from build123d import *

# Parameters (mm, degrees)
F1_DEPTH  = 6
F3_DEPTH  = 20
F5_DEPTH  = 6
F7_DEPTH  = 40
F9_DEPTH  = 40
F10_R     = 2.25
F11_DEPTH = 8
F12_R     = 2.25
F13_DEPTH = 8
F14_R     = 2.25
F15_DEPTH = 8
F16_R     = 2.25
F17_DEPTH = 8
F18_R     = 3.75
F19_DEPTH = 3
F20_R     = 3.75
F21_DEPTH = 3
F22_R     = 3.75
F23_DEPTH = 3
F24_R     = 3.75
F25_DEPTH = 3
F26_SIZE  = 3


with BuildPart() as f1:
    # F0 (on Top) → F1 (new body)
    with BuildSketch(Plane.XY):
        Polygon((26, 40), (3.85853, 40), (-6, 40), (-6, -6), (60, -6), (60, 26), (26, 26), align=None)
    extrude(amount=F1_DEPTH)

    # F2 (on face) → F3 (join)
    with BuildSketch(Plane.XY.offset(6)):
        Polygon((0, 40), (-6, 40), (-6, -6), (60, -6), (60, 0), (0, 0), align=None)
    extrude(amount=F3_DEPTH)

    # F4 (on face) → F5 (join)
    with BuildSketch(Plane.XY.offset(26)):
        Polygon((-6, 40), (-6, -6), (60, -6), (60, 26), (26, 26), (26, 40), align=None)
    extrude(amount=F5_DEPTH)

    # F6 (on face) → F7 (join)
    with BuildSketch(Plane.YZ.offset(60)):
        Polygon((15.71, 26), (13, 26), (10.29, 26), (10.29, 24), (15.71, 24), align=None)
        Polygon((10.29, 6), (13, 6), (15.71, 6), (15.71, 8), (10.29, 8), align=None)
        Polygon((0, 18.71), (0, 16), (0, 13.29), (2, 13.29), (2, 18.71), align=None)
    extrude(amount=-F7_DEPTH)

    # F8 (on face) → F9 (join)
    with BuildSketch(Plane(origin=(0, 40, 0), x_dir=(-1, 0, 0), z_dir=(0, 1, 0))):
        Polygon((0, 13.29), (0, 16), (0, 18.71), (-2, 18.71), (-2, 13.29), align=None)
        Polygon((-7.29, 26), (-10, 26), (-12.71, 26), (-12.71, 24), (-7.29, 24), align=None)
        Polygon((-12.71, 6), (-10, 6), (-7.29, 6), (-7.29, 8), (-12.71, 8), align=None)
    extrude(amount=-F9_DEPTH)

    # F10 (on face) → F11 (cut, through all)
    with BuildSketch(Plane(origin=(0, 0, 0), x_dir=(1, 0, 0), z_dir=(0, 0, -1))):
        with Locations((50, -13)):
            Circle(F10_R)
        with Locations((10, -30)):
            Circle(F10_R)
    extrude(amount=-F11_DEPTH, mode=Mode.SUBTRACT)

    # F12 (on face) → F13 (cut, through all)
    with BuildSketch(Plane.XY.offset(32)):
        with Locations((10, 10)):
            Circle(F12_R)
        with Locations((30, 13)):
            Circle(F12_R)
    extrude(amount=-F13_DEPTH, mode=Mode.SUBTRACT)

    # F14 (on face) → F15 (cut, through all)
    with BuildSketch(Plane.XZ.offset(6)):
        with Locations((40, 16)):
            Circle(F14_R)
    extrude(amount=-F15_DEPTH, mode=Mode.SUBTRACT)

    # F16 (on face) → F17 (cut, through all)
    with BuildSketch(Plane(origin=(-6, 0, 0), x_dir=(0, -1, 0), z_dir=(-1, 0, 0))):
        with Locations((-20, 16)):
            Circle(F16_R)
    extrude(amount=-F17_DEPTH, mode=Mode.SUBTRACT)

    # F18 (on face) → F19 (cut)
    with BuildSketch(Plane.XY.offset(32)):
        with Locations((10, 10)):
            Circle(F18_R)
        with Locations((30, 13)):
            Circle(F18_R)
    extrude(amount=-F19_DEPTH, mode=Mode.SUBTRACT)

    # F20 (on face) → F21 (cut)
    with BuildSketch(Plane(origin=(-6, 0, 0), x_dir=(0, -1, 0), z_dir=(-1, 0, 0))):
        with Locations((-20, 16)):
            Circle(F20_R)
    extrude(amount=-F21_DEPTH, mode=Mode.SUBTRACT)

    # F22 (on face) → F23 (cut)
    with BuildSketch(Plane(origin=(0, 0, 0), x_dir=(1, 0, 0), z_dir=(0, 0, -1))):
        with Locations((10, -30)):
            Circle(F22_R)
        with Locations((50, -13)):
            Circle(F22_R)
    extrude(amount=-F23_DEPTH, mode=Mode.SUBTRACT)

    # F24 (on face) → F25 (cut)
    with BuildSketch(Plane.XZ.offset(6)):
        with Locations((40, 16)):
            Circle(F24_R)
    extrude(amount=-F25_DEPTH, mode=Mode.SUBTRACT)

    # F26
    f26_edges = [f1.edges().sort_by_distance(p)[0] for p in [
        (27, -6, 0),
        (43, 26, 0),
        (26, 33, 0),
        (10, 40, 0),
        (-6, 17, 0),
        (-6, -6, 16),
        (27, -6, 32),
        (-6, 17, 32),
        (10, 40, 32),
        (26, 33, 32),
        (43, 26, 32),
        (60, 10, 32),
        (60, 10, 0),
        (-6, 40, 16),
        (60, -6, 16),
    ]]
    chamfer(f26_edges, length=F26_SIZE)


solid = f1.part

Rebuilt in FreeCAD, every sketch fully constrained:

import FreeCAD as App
import Part
import Sketcher


def edges_at(feature, points):
    """Names of the edges that pass closest to the given points."""
    edges = feature.Shape.Edges
    near = lambda p: min(range(len(edges)), key=lambda i: edges[i].distToShape(Part.Vertex(*p))[0])
    return sorted({f"Edge{near(p) + 1}" for p in points})

doc = App.newDocument("Part")
body = doc.addObject("PartDesign::Body", "Body")

sketch1 = doc.addObject("Sketcher::SketchObject", "Sketch")
body.addObject(sketch1)
sketch1.AttachmentSupport = (doc.XY_Plane, [""])
sketch1.MapMode = "FlatFace"
sketch1.addGeometry(Part.LineSegment(App.Vector(26, 40, 0), App.Vector(-6, 40, 0)), False)
sketch1.addGeometry(Part.LineSegment(App.Vector(-6, 40, 0), App.Vector(-6, -6, 0)), False)
sketch1.addGeometry(Part.LineSegment(App.Vector(-6, -6, 0), App.Vector(60, -6, 0)), False)
sketch1.addGeometry(Part.LineSegment(App.Vector(60, -6, 0), App.Vector(60, 26, 0)), False)
sketch1.addGeometry(Part.LineSegment(App.Vector(60, 26, 0), App.Vector(26, 26, 0)), False)
sketch1.addGeometry(Part.LineSegment(App.Vector(26, 26, 0), App.Vector(26, 40, 0)), False)
sketch1.addConstraint(Sketcher.Constraint("Coincident", 0, 2, 1, 1))
sketch1.addConstraint(Sketcher.Constraint("Coincident", 1, 2, 2, 1))
sketch1.addConstraint(Sketcher.Constraint("Coincident", 2, 2, 3, 1))
sketch1.addConstraint(Sketcher.Constraint("Coincident", 3, 2, 4, 1))
sketch1.addConstraint(Sketcher.Constraint("Coincident", 4, 2, 5, 1))
sketch1.addConstraint(Sketcher.Constraint("Coincident", 5, 2, 0, 1))
sketch1.addConstraint(Sketcher.Constraint("Horizontal", 0))
sketch1.addConstraint(Sketcher.Constraint("Vertical", 1))
sketch1.addConstraint(Sketcher.Constraint("Horizontal", 2))
sketch1.addConstraint(Sketcher.Constraint("Vertical", 3))
sketch1.addConstraint(Sketcher.Constraint("Horizontal", 4))
sketch1.addConstraint(Sketcher.Constraint("Vertical", 5))
sketch1.addConstraint(Sketcher.Constraint("Equal", 0, 3))
sketch1.addConstraint(Sketcher.Constraint("DistanceX", 0, 2, 0, 1, 32.0))
sketch1.addConstraint(Sketcher.Constraint("DistanceX", 2, 1, 2, 2, 66.0))
sketch1.addConstraint(Sketcher.Constraint("DistanceY", 1, 2, 1, 1, 46.0))
sketch1.addConstraint(Sketcher.Constraint("DistanceX", 0, 2, -1, 1, 6.0))
sketch1.addConstraint(Sketcher.Constraint("DistanceY", -1, 1, 0, 2, 40.0))
pad1 = doc.addObject("PartDesign::Pad", "Pad")
body.addObject(pad1)
pad1.Profile = sketch1
pad1.Length = 6

sketch2 = doc.addObject("Sketcher::SketchObject", "Sketch001")
body.addObject(sketch2)
sketch2.AttachmentSupport = (doc.XY_Plane, [""])
sketch2.MapMode = "FlatFace"
sketch2.AttachmentOffset = App.Placement(App.Vector(0, 0, 6), App.Rotation())
sketch2.addGeometry(Part.LineSegment(App.Vector(0, 40, 0), App.Vector(-6, 40, 0)), False)
sketch2.addGeometry(Part.LineSegment(App.Vector(-6, 40, 0), App.Vector(-6, -6, 0)), False)
sketch2.addGeometry(Part.LineSegment(App.Vector(-6, -6, 0), App.Vector(60, -6, 0)), False)
sketch2.addGeometry(Part.LineSegment(App.Vector(60, -6, 0), App.Vector(60, 0, 0)), False)
sketch2.addGeometry(Part.LineSegment(App.Vector(60, 0, 0), App.Vector(0, 0, 0)), False)
sketch2.addGeometry(Part.LineSegment(App.Vector(0, 0, 0), App.Vector(0, 40, 0)), False)
sketch2.addConstraint(Sketcher.Constraint("Coincident", 0, 2, 1, 1))
sketch2.addConstraint(Sketcher.Constraint("Coincident", 1, 2, 2, 1))
sketch2.addConstraint(Sketcher.Constraint("Coincident", 2, 2, 3, 1))
sketch2.addConstraint(Sketcher.Constraint("Coincident", 3, 2, 4, 1))
sketch2.addConstraint(Sketcher.Constraint("Coincident", 4, 2, 5, 1))
sketch2.addConstraint(Sketcher.Constraint("Coincident", 5, 2, 0, 1))
sketch2.addConstraint(Sketcher.Constraint("Horizontal", 0))
sketch2.addConstraint(Sketcher.Constraint("Vertical", 1))
sketch2.addConstraint(Sketcher.Constraint("Horizontal", 2))
sketch2.addConstraint(Sketcher.Constraint("Vertical", 3))
sketch2.addConstraint(Sketcher.Constraint("Horizontal", 4))
sketch2.addConstraint(Sketcher.Constraint("Vertical", 5))
sketch2.addConstraint(Sketcher.Constraint("Coincident", 4, 2, -1, 1))
sketch2.addConstraint(Sketcher.Constraint("Equal", 0, 3))
sketch2.addConstraint(Sketcher.Constraint("DistanceX", 0, 2, 0, 1, 6.0))
sketch2.addConstraint(Sketcher.Constraint("DistanceX", 2, 1, 2, 2, 66.0))
sketch2.addConstraint(Sketcher.Constraint("DistanceY", 1, 2, 1, 1, 46.0))
pad2 = doc.addObject("PartDesign::Pad", "Pad001")
body.addObject(pad2)
pad2.Profile = sketch2
pad2.Length = 20

sketch3 = doc.addObject("Sketcher::SketchObject", "Sketch002")
body.addObject(sketch3)
sketch3.AttachmentSupport = (doc.XY_Plane, [""])
sketch3.MapMode = "FlatFace"
sketch3.AttachmentOffset = App.Placement(App.Vector(0, 0, 26), App.Rotation())
sketch3.addGeometry(Part.LineSegment(App.Vector(-6, 40, 0), App.Vector(-6, -6, 0)), False)
sketch3.addGeometry(Part.LineSegment(App.Vector(-6, -6, 0), App.Vector(60, -6, 0)), False)
sketch3.addGeometry(Part.LineSegment(App.Vector(60, -6, 0), App.Vector(60, 26, 0)), False)
sketch3.addGeometry(Part.LineSegment(App.Vector(60, 26, 0), App.Vector(26, 26, 0)), False)
sketch3.addGeometry(Part.LineSegment(App.Vector(26, 26, 0), App.Vector(26, 40, 0)), False)
sketch3.addGeometry(Part.LineSegment(App.Vector(26, 40, 0), App.Vector(-6, 40, 0)), False)
sketch3.addConstraint(Sketcher.Constraint("Coincident", 0, 2, 1, 1))
sketch3.addConstraint(Sketcher.Constraint("Coincident", 1, 2, 2, 1))
sketch3.addConstraint(Sketcher.Constraint("Coincident", 2, 2, 3, 1))
sketch3.addConstraint(Sketcher.Constraint("Coincident", 3, 2, 4, 1))
sketch3.addConstraint(Sketcher.Constraint("Coincident", 4, 2, 5, 1))
sketch3.addConstraint(Sketcher.Constraint("Coincident", 5, 2, 0, 1))
sketch3.addConstraint(Sketcher.Constraint("Vertical", 0))
sketch3.addConstraint(Sketcher.Constraint("Horizontal", 1))
sketch3.addConstraint(Sketcher.Constraint("Vertical", 2))
sketch3.addConstraint(Sketcher.Constraint("Horizontal", 3))
sketch3.addConstraint(Sketcher.Constraint("Vertical", 4))
sketch3.addConstraint(Sketcher.Constraint("Horizontal", 5))
sketch3.addConstraint(Sketcher.Constraint("Equal", 5, 2))
sketch3.addConstraint(Sketcher.Constraint("DistanceX", 1, 1, 1, 2, 66.0))
sketch3.addConstraint(Sketcher.Constraint("DistanceX", 3, 2, 3, 1, 34.0))
sketch3.addConstraint(Sketcher.Constraint("DistanceY", 0, 2, 0, 1, 46.0))
sketch3.addConstraint(Sketcher.Constraint("DistanceX", 0, 2, -1, 1, 6.0))
sketch3.addConstraint(Sketcher.Constraint("DistanceY", 0, 2, -1, 1, 6.0))
pad3 = doc.addObject("PartDesign::Pad", "Pad002")
body.addObject(pad3)
pad3.Profile = sketch3
pad3.Length = 6

sketch4 = doc.addObject("Sketcher::SketchObject", "Sketch003")
body.addObject(sketch4)
sketch4.AttachmentSupport = (doc.YZ_Plane, [""])
sketch4.MapMode = "FlatFace"
sketch4.AttachmentOffset = App.Placement(App.Vector(0, 0, 60), App.Rotation())
sketch4.addGeometry(Part.LineSegment(App.Vector(15.7, 26, 0), App.Vector(10.3, 26, 0)), False)
sketch4.addGeometry(Part.LineSegment(App.Vector(10.3, 26, 0), App.Vector(10.3, 24, 0)), False)
sketch4.addGeometry(Part.LineSegment(App.Vector(10.3, 24, 0), App.Vector(15.7, 24, 0)), False)
sketch4.addGeometry(Part.LineSegment(App.Vector(15.7, 24, 0), App.Vector(15.7, 26, 0)), False)
sketch4.addGeometry(Part.LineSegment(App.Vector(10.3, 6, 0), App.Vector(15.7, 6, 0)), False)
sketch4.addGeometry(Part.LineSegment(App.Vector(15.7, 6, 0), App.Vector(15.7, 8, 0)), False)
sketch4.addGeometry(Part.LineSegment(App.Vector(15.7, 8, 0), App.Vector(10.3, 8, 0)), False)
sketch4.addGeometry(Part.LineSegment(App.Vector(10.3, 8, 0), App.Vector(10.3, 6, 0)), False)
sketch4.addGeometry(Part.LineSegment(App.Vector(0, 18.7, 0), App.Vector(0, 13.3, 0)), False)
sketch4.addGeometry(Part.LineSegment(App.Vector(0, 13.3, 0), App.Vector(2, 13.3, 0)), False)
sketch4.addGeometry(Part.LineSegment(App.Vector(2, 13.3, 0), App.Vector(2, 18.7, 0)), False)
sketch4.addGeometry(Part.LineSegment(App.Vector(2, 18.7, 0), App.Vector(0, 18.7, 0)), False)
sketch4.addConstraint(Sketcher.Constraint("Coincident", 0, 2, 1, 1))
sketch4.addConstraint(Sketcher.Constraint("Coincident", 1, 2, 2, 1))
sketch4.addConstraint(Sketcher.Constraint("Coincident", 2, 2, 3, 1))
sketch4.addConstraint(Sketcher.Constraint("Coincident", 3, 2, 0, 1))
sketch4.addConstraint(Sketcher.Constraint("Coincident", 4, 2, 5, 1))
sketch4.addConstraint(Sketcher.Constraint("Coincident", 5, 2, 6, 1))
sketch4.addConstraint(Sketcher.Constraint("Coincident", 6, 2, 7, 1))
sketch4.addConstraint(Sketcher.Constraint("Coincident", 7, 2, 4, 1))
sketch4.addConstraint(Sketcher.Constraint("Coincident", 8, 2, 9, 1))
sketch4.addConstraint(Sketcher.Constraint("Coincident", 9, 2, 10, 1))
sketch4.addConstraint(Sketcher.Constraint("Coincident", 10, 2, 11, 1))
sketch4.addConstraint(Sketcher.Constraint("Coincident", 11, 2, 8, 1))
sketch4.addConstraint(Sketcher.Constraint("Horizontal", 0))
sketch4.addConstraint(Sketcher.Constraint("Vertical", 1))
sketch4.addConstraint(Sketcher.Constraint("Horizontal", 2))
sketch4.addConstraint(Sketcher.Constraint("Vertical", 3))
sketch4.addConstraint(Sketcher.Constraint("Horizontal", 4))
sketch4.addConstraint(Sketcher.Constraint("Vertical", 5))
sketch4.addConstraint(Sketcher.Constraint("Horizontal", 6))
sketch4.addConstraint(Sketcher.Constraint("Vertical", 7))
sketch4.addConstraint(Sketcher.Constraint("Vertical", 8))
sketch4.addConstraint(Sketcher.Constraint("Horizontal", 9))
sketch4.addConstraint(Sketcher.Constraint("Vertical", 10))
sketch4.addConstraint(Sketcher.Constraint("Horizontal", 11))
sketch4.addConstraint(Sketcher.Constraint("PointOnObject", 8, 2, -2))
sketch4.addConstraint(Sketcher.Constraint("Vertical", 3, 2, 4, 2))
sketch4.addConstraint(Sketcher.Constraint("Vertical", 1, 2, 6, 2))
sketch4.addConstraint(Sketcher.Constraint("Equal", 11, 1))
sketch4.addConstraint(Sketcher.Constraint("Equal", 3, 5))
sketch4.addConstraint(Sketcher.Constraint("Equal", 6, 8))
sketch4.addConstraint(Sketcher.Constraint("DistanceX", 9, 1, 9, 2, 2.0))
sketch4.addConstraint(Sketcher.Constraint("DistanceY", -1, 1, 0, 2, 26.0))
sketch4.addConstraint(Sketcher.Constraint("DistanceY", -1, 1, 4, 2, 6.0))
sketch4.addConstraint(Sketcher.Constraint("DistanceX", 0, 2, 0, 1, 5.42))
sketch4.addConstraint(Sketcher.Constraint("DistanceX", -1, 1, 0, 2, 10.29))
sketch4.addConstraint(Sketcher.Constraint("DistanceY", -1, 1, 8, 2, 13.29))
pad4 = doc.addObject("PartDesign::Pad", "Pad003")
body.addObject(pad4)
pad4.Profile = sketch4
pad4.Length = 40
pad4.Reversed = True

sketch5 = doc.addObject("Sketcher::SketchObject", "Sketch004")
body.addObject(sketch5)
sketch5.AttachmentSupport = (doc.XZ_Plane, [""])
sketch5.MapMode = "FlatFace"
sketch5.AttachmentOffset = App.Placement(App.Vector(0, 0, -40), App.Rotation())
sketch5.addGeometry(Part.LineSegment(App.Vector(0, 13.3, 0), App.Vector(0, 18.7, 0)), False)
sketch5.addGeometry(Part.LineSegment(App.Vector(0, 18.7, 0), App.Vector(2, 18.7, 0)), False)
sketch5.addGeometry(Part.LineSegment(App.Vector(2, 18.7, 0), App.Vector(2, 13.3, 0)), False)
sketch5.addGeometry(Part.LineSegment(App.Vector(2, 13.3, 0), App.Vector(0, 13.3, 0)), False)
sketch5.addGeometry(Part.LineSegment(App.Vector(7.3, 26, 0), App.Vector(12.7, 26, 0)), False)
sketch5.addGeometry(Part.LineSegment(App.Vector(12.7, 26, 0), App.Vector(12.7, 24, 0)), False)
sketch5.addGeometry(Part.LineSegment(App.Vector(12.7, 24, 0), App.Vector(7.3, 24, 0)), False)
sketch5.addGeometry(Part.LineSegment(App.Vector(7.3, 24, 0), App.Vector(7.3, 26, 0)), False)
sketch5.addGeometry(Part.LineSegment(App.Vector(12.7, 6, 0), App.Vector(7.3, 6, 0)), False)
sketch5.addGeometry(Part.LineSegment(App.Vector(7.3, 6, 0), App.Vector(7.3, 8, 0)), False)
sketch5.addGeometry(Part.LineSegment(App.Vector(7.3, 8, 0), App.Vector(12.7, 8, 0)), False)
sketch5.addGeometry(Part.LineSegment(App.Vector(12.7, 8, 0), App.Vector(12.7, 6, 0)), False)
sketch5.addConstraint(Sketcher.Constraint("Coincident", 0, 2, 1, 1))
sketch5.addConstraint(Sketcher.Constraint("Coincident", 1, 2, 2, 1))
sketch5.addConstraint(Sketcher.Constraint("Coincident", 2, 2, 3, 1))
sketch5.addConstraint(Sketcher.Constraint("Coincident", 3, 2, 0, 1))
sketch5.addConstraint(Sketcher.Constraint("Coincident", 4, 2, 5, 1))
sketch5.addConstraint(Sketcher.Constraint("Coincident", 5, 2, 6, 1))
sketch5.addConstraint(Sketcher.Constraint("Coincident", 6, 2, 7, 1))
sketch5.addConstraint(Sketcher.Constraint("Coincident", 7, 2, 4, 1))
sketch5.addConstraint(Sketcher.Constraint("Coincident", 8, 2, 9, 1))
sketch5.addConstraint(Sketcher.Constraint("Coincident", 9, 2, 10, 1))
sketch5.addConstraint(Sketcher.Constraint("Coincident", 10, 2, 11, 1))
sketch5.addConstraint(Sketcher.Constraint("Coincident", 11, 2, 8, 1))
sketch5.addConstraint(Sketcher.Constraint("Vertical", 0))
sketch5.addConstraint(Sketcher.Constraint("Horizontal", 1))
sketch5.addConstraint(Sketcher.Constraint("Vertical", 2))
sketch5.addConstraint(Sketcher.Constraint("Horizontal", 3))
sketch5.addConstraint(Sketcher.Constraint("Horizontal", 4))
sketch5.addConstraint(Sketcher.Constraint("Vertical", 5))
sketch5.addConstraint(Sketcher.Constraint("Horizontal", 6))
sketch5.addConstraint(Sketcher.Constraint("Vertical", 7))
sketch5.addConstraint(Sketcher.Constraint("Horizontal", 8))
sketch5.addConstraint(Sketcher.Constraint("Vertical", 9))
sketch5.addConstraint(Sketcher.Constraint("Horizontal", 10))
sketch5.addConstraint(Sketcher.Constraint("Vertical", 11))
sketch5.addConstraint(Sketcher.Constraint("PointOnObject", 0, 2, -2))
sketch5.addConstraint(Sketcher.Constraint("Vertical", 7, 2, 8, 2))
sketch5.addConstraint(Sketcher.Constraint("Vertical", 5, 2, 10, 2))
sketch5.addConstraint(Sketcher.Constraint("Equal", 10, 0))
sketch5.addConstraint(Sketcher.Constraint("Equal", 3, 5))
sketch5.addConstraint(Sketcher.Constraint("Equal", 7, 9))
sketch5.addConstraint(Sketcher.Constraint("DistanceX", 1, 1, 1, 2, 2.0))
sketch5.addConstraint(Sketcher.Constraint("DistanceY", -1, 1, 4, 2, 26.0))
sketch5.addConstraint(Sketcher.Constraint("DistanceY", -1, 1, 8, 2, 6.0))
sketch5.addConstraint(Sketcher.Constraint("DistanceX", 4, 1, 4, 2, 5.42))
sketch5.addConstraint(Sketcher.Constraint("DistanceY", -1, 1, 0, 2, 18.71))
sketch5.addConstraint(Sketcher.Constraint("DistanceX", -1, 1, 4, 2, 12.71))
pad5 = doc.addObject("PartDesign::Pad", "Pad004")
body.addObject(pad5)
pad5.Profile = sketch5
pad5.Length = 40

sketch6 = doc.addObject("Sketcher::SketchObject", "Sketch005")
body.addObject(sketch6)
sketch6.AttachmentSupport = (doc.XY_Plane, [""])
sketch6.MapMode = "FlatFace"
sketch6.addGeometry(Part.Circle(App.Vector(50, 13, 0), App.Vector(0, 0, 1), 2.2), False)
sketch6.addGeometry(Part.Circle(App.Vector(10, 30, 0), App.Vector(0, 0, 1), 2.2), False)
sketch6.addConstraint(Sketcher.Constraint("Equal", 0, 1))
sketch6.addConstraint(Sketcher.Constraint("Diameter", 0, 4.5))
sketch6.addConstraint(Sketcher.Constraint("DistanceX", -1, 1, 0, 3, 50.0))
sketch6.addConstraint(Sketcher.Constraint("DistanceY", -1, 1, 0, 3, 13.0))
sketch6.addConstraint(Sketcher.Constraint("DistanceX", -1, 1, 1, 3, 10.0))
sketch6.addConstraint(Sketcher.Constraint("DistanceY", -1, 1, 1, 3, 30.0))
pocket1 = doc.addObject("PartDesign::Pocket", "Pocket")
body.addObject(pocket1)
pocket1.Profile = sketch6
pocket1.Length = 8
pocket1.Reversed = True

sketch7 = doc.addObject("Sketcher::SketchObject", "Sketch006")
body.addObject(sketch7)
sketch7.AttachmentSupport = (doc.XY_Plane, [""])
sketch7.MapMode = "FlatFace"
sketch7.AttachmentOffset = App.Placement(App.Vector(0, 0, 32), App.Rotation())
sketch7.addGeometry(Part.Circle(App.Vector(10, 10, 0), App.Vector(0, 0, 1), 2.2), False)
sketch7.addGeometry(Part.Circle(App.Vector(30, 13, 0), App.Vector(0, 0, 1), 2.2), False)
sketch7.addConstraint(Sketcher.Constraint("Equal", 0, 1))
sketch7.addConstraint(Sketcher.Constraint("Diameter", 0, 4.5))
sketch7.addConstraint(Sketcher.Constraint("DistanceX", -1, 1, 0, 3, 10.0))
sketch7.addConstraint(Sketcher.Constraint("DistanceY", -1, 1, 0, 3, 10.0))
sketch7.addConstraint(Sketcher.Constraint("DistanceX", -1, 1, 1, 3, 30.0))
sketch7.addConstraint(Sketcher.Constraint("DistanceY", -1, 1, 1, 3, 13.0))
pocket2 = doc.addObject("PartDesign::Pocket", "Pocket001")
body.addObject(pocket2)
pocket2.Profile = sketch7
pocket2.Length = 8

sketch8 = doc.addObject("Sketcher::SketchObject", "Sketch007")
body.addObject(sketch8)
sketch8.AttachmentSupport = (doc.XZ_Plane, [""])
sketch8.MapMode = "FlatFace"
sketch8.AttachmentOffset = App.Placement(App.Vector(0, 0, 6), App.Rotation())
sketch8.addGeometry(Part.Circle(App.Vector(40, 16, 0), App.Vector(0, 0, 1), 2.2), False)
sketch8.addConstraint(Sketcher.Constraint("Diameter", 0, 4.5))
sketch8.addConstraint(Sketcher.Constraint("DistanceX", -1, 1, 0, 3, 40.0))
sketch8.addConstraint(Sketcher.Constraint("DistanceY", -1, 1, 0, 3, 16.0))
pocket3 = doc.addObject("PartDesign::Pocket", "Pocket002")
body.addObject(pocket3)
pocket3.Profile = sketch8
pocket3.Type = "ThroughAll"

sketch9 = doc.addObject("Sketcher::SketchObject", "Sketch008")
body.addObject(sketch9)
sketch9.AttachmentSupport = (doc.YZ_Plane, [""])
sketch9.MapMode = "FlatFace"
sketch9.AttachmentOffset = App.Placement(App.Vector(0, 0, -6), App.Rotation())
sketch9.addGeometry(Part.Circle(App.Vector(20, 16, 0), App.Vector(0, 0, 1), 2.2), False)
sketch9.addConstraint(Sketcher.Constraint("Diameter", 0, 4.5))
sketch9.addConstraint(Sketcher.Constraint("DistanceX", -1, 1, 0, 3, 20.0))
sketch9.addConstraint(Sketcher.Constraint("DistanceY", -1, 1, 0, 3, 16.0))
pocket4 = doc.addObject("PartDesign::Pocket", "Pocket003")
body.addObject(pocket4)
pocket4.Profile = sketch9
pocket4.Type = "ThroughAll"
pocket4.Reversed = True

sketch10 = doc.addObject("Sketcher::SketchObject", "Sketch009")
body.addObject(sketch10)
sketch10.AttachmentSupport = (doc.XY_Plane, [""])
sketch10.MapMode = "FlatFace"
sketch10.AttachmentOffset = App.Placement(App.Vector(0, 0, 32), App.Rotation())
sketch10.addGeometry(Part.Circle(App.Vector(10, 10, 0), App.Vector(0, 0, 1), 3.8), False)
sketch10.addGeometry(Part.Circle(App.Vector(30, 13, 0), App.Vector(0, 0, 1), 3.8), False)
sketch10.addConstraint(Sketcher.Constraint("Equal", 0, 1))
sketch10.addConstraint(Sketcher.Constraint("Diameter", 0, 7.5))
sketch10.addConstraint(Sketcher.Constraint("DistanceX", -1, 1, 0, 3, 10.0))
sketch10.addConstraint(Sketcher.Constraint("DistanceY", -1, 1, 0, 3, 10.0))
sketch10.addConstraint(Sketcher.Constraint("DistanceX", -1, 1, 1, 3, 30.0))
sketch10.addConstraint(Sketcher.Constraint("DistanceY", -1, 1, 1, 3, 13.0))
pocket5 = doc.addObject("PartDesign::Pocket", "Pocket004")
body.addObject(pocket5)
pocket5.Profile = sketch10
pocket5.Length = 3

sketch11 = doc.addObject("Sketcher::SketchObject", "Sketch010")
body.addObject(sketch11)
sketch11.AttachmentSupport = (doc.YZ_Plane, [""])
sketch11.MapMode = "FlatFace"
sketch11.AttachmentOffset = App.Placement(App.Vector(0, 0, -6), App.Rotation())
sketch11.addGeometry(Part.Circle(App.Vector(20, 16, 0), App.Vector(0, 0, 1), 3.8), False)
sketch11.addConstraint(Sketcher.Constraint("Diameter", 0, 7.5))
sketch11.addConstraint(Sketcher.Constraint("DistanceX", -1, 1, 0, 3, 20.0))
sketch11.addConstraint(Sketcher.Constraint("DistanceY", -1, 1, 0, 3, 16.0))
pocket6 = doc.addObject("PartDesign::Pocket", "Pocket005")
body.addObject(pocket6)
pocket6.Profile = sketch11
pocket6.Length = 3
pocket6.Reversed = True

sketch12 = doc.addObject("Sketcher::SketchObject", "Sketch011")
body.addObject(sketch12)
sketch12.AttachmentSupport = (doc.XY_Plane, [""])
sketch12.MapMode = "FlatFace"
sketch12.addGeometry(Part.Circle(App.Vector(10, 30, 0), App.Vector(0, 0, 1), 3.8), False)
sketch12.addGeometry(Part.Circle(App.Vector(50, 13, 0), App.Vector(0, 0, 1), 3.8), False)
sketch12.addConstraint(Sketcher.Constraint("Equal", 0, 1))
sketch12.addConstraint(Sketcher.Constraint("Diameter", 0, 7.5))
sketch12.addConstraint(Sketcher.Constraint("DistanceX", -1, 1, 0, 3, 10.0))
sketch12.addConstraint(Sketcher.Constraint("DistanceY", -1, 1, 0, 3, 30.0))
sketch12.addConstraint(Sketcher.Constraint("DistanceX", -1, 1, 1, 3, 50.0))
sketch12.addConstraint(Sketcher.Constraint("DistanceY", -1, 1, 1, 3, 13.0))
pocket7 = doc.addObject("PartDesign::Pocket", "Pocket006")
body.addObject(pocket7)
pocket7.Profile = sketch12
pocket7.Length = 3
pocket7.Reversed = True

sketch13 = doc.addObject("Sketcher::SketchObject", "Sketch012")
body.addObject(sketch13)
sketch13.AttachmentSupport = (doc.XZ_Plane, [""])
sketch13.MapMode = "FlatFace"
sketch13.AttachmentOffset = App.Placement(App.Vector(0, 0, 6), App.Rotation())
sketch13.addGeometry(Part.Circle(App.Vector(40, 16, 0), App.Vector(0, 0, 1), 3.8), False)
sketch13.addConstraint(Sketcher.Constraint("Diameter", 0, 7.5))
sketch13.addConstraint(Sketcher.Constraint("DistanceX", -1, 1, 0, 3, 40.0))
sketch13.addConstraint(Sketcher.Constraint("DistanceY", -1, 1, 0, 3, 16.0))
pocket8 = doc.addObject("PartDesign::Pocket", "Pocket007")
body.addObject(pocket8)
pocket8.Profile = sketch13
pocket8.Length = 3
doc.recompute()

chamfer = doc.addObject("PartDesign::Chamfer", "Chamfer")
body.addObject(chamfer)
chamfer.Base = (pocket8, edges_at(pocket8, [
    (27, -6, 0),
    (43, 26, 0),
    (26, 33, 0),
    (10, 40, 0),
    (-6, 17, 0),
    (-6, -6, 16),
    (27, -6, 32),
    (-6, 17, 32),
    (10, 40, 32),
    (26, 33, 32),
    (43, 26, 32),
    (60, 10, 32),
    (60, 10, 0),
    (-6, 40, 16),
    (60, -6, 16),
]))
chamfer.Size = 3

doc.recompute()
